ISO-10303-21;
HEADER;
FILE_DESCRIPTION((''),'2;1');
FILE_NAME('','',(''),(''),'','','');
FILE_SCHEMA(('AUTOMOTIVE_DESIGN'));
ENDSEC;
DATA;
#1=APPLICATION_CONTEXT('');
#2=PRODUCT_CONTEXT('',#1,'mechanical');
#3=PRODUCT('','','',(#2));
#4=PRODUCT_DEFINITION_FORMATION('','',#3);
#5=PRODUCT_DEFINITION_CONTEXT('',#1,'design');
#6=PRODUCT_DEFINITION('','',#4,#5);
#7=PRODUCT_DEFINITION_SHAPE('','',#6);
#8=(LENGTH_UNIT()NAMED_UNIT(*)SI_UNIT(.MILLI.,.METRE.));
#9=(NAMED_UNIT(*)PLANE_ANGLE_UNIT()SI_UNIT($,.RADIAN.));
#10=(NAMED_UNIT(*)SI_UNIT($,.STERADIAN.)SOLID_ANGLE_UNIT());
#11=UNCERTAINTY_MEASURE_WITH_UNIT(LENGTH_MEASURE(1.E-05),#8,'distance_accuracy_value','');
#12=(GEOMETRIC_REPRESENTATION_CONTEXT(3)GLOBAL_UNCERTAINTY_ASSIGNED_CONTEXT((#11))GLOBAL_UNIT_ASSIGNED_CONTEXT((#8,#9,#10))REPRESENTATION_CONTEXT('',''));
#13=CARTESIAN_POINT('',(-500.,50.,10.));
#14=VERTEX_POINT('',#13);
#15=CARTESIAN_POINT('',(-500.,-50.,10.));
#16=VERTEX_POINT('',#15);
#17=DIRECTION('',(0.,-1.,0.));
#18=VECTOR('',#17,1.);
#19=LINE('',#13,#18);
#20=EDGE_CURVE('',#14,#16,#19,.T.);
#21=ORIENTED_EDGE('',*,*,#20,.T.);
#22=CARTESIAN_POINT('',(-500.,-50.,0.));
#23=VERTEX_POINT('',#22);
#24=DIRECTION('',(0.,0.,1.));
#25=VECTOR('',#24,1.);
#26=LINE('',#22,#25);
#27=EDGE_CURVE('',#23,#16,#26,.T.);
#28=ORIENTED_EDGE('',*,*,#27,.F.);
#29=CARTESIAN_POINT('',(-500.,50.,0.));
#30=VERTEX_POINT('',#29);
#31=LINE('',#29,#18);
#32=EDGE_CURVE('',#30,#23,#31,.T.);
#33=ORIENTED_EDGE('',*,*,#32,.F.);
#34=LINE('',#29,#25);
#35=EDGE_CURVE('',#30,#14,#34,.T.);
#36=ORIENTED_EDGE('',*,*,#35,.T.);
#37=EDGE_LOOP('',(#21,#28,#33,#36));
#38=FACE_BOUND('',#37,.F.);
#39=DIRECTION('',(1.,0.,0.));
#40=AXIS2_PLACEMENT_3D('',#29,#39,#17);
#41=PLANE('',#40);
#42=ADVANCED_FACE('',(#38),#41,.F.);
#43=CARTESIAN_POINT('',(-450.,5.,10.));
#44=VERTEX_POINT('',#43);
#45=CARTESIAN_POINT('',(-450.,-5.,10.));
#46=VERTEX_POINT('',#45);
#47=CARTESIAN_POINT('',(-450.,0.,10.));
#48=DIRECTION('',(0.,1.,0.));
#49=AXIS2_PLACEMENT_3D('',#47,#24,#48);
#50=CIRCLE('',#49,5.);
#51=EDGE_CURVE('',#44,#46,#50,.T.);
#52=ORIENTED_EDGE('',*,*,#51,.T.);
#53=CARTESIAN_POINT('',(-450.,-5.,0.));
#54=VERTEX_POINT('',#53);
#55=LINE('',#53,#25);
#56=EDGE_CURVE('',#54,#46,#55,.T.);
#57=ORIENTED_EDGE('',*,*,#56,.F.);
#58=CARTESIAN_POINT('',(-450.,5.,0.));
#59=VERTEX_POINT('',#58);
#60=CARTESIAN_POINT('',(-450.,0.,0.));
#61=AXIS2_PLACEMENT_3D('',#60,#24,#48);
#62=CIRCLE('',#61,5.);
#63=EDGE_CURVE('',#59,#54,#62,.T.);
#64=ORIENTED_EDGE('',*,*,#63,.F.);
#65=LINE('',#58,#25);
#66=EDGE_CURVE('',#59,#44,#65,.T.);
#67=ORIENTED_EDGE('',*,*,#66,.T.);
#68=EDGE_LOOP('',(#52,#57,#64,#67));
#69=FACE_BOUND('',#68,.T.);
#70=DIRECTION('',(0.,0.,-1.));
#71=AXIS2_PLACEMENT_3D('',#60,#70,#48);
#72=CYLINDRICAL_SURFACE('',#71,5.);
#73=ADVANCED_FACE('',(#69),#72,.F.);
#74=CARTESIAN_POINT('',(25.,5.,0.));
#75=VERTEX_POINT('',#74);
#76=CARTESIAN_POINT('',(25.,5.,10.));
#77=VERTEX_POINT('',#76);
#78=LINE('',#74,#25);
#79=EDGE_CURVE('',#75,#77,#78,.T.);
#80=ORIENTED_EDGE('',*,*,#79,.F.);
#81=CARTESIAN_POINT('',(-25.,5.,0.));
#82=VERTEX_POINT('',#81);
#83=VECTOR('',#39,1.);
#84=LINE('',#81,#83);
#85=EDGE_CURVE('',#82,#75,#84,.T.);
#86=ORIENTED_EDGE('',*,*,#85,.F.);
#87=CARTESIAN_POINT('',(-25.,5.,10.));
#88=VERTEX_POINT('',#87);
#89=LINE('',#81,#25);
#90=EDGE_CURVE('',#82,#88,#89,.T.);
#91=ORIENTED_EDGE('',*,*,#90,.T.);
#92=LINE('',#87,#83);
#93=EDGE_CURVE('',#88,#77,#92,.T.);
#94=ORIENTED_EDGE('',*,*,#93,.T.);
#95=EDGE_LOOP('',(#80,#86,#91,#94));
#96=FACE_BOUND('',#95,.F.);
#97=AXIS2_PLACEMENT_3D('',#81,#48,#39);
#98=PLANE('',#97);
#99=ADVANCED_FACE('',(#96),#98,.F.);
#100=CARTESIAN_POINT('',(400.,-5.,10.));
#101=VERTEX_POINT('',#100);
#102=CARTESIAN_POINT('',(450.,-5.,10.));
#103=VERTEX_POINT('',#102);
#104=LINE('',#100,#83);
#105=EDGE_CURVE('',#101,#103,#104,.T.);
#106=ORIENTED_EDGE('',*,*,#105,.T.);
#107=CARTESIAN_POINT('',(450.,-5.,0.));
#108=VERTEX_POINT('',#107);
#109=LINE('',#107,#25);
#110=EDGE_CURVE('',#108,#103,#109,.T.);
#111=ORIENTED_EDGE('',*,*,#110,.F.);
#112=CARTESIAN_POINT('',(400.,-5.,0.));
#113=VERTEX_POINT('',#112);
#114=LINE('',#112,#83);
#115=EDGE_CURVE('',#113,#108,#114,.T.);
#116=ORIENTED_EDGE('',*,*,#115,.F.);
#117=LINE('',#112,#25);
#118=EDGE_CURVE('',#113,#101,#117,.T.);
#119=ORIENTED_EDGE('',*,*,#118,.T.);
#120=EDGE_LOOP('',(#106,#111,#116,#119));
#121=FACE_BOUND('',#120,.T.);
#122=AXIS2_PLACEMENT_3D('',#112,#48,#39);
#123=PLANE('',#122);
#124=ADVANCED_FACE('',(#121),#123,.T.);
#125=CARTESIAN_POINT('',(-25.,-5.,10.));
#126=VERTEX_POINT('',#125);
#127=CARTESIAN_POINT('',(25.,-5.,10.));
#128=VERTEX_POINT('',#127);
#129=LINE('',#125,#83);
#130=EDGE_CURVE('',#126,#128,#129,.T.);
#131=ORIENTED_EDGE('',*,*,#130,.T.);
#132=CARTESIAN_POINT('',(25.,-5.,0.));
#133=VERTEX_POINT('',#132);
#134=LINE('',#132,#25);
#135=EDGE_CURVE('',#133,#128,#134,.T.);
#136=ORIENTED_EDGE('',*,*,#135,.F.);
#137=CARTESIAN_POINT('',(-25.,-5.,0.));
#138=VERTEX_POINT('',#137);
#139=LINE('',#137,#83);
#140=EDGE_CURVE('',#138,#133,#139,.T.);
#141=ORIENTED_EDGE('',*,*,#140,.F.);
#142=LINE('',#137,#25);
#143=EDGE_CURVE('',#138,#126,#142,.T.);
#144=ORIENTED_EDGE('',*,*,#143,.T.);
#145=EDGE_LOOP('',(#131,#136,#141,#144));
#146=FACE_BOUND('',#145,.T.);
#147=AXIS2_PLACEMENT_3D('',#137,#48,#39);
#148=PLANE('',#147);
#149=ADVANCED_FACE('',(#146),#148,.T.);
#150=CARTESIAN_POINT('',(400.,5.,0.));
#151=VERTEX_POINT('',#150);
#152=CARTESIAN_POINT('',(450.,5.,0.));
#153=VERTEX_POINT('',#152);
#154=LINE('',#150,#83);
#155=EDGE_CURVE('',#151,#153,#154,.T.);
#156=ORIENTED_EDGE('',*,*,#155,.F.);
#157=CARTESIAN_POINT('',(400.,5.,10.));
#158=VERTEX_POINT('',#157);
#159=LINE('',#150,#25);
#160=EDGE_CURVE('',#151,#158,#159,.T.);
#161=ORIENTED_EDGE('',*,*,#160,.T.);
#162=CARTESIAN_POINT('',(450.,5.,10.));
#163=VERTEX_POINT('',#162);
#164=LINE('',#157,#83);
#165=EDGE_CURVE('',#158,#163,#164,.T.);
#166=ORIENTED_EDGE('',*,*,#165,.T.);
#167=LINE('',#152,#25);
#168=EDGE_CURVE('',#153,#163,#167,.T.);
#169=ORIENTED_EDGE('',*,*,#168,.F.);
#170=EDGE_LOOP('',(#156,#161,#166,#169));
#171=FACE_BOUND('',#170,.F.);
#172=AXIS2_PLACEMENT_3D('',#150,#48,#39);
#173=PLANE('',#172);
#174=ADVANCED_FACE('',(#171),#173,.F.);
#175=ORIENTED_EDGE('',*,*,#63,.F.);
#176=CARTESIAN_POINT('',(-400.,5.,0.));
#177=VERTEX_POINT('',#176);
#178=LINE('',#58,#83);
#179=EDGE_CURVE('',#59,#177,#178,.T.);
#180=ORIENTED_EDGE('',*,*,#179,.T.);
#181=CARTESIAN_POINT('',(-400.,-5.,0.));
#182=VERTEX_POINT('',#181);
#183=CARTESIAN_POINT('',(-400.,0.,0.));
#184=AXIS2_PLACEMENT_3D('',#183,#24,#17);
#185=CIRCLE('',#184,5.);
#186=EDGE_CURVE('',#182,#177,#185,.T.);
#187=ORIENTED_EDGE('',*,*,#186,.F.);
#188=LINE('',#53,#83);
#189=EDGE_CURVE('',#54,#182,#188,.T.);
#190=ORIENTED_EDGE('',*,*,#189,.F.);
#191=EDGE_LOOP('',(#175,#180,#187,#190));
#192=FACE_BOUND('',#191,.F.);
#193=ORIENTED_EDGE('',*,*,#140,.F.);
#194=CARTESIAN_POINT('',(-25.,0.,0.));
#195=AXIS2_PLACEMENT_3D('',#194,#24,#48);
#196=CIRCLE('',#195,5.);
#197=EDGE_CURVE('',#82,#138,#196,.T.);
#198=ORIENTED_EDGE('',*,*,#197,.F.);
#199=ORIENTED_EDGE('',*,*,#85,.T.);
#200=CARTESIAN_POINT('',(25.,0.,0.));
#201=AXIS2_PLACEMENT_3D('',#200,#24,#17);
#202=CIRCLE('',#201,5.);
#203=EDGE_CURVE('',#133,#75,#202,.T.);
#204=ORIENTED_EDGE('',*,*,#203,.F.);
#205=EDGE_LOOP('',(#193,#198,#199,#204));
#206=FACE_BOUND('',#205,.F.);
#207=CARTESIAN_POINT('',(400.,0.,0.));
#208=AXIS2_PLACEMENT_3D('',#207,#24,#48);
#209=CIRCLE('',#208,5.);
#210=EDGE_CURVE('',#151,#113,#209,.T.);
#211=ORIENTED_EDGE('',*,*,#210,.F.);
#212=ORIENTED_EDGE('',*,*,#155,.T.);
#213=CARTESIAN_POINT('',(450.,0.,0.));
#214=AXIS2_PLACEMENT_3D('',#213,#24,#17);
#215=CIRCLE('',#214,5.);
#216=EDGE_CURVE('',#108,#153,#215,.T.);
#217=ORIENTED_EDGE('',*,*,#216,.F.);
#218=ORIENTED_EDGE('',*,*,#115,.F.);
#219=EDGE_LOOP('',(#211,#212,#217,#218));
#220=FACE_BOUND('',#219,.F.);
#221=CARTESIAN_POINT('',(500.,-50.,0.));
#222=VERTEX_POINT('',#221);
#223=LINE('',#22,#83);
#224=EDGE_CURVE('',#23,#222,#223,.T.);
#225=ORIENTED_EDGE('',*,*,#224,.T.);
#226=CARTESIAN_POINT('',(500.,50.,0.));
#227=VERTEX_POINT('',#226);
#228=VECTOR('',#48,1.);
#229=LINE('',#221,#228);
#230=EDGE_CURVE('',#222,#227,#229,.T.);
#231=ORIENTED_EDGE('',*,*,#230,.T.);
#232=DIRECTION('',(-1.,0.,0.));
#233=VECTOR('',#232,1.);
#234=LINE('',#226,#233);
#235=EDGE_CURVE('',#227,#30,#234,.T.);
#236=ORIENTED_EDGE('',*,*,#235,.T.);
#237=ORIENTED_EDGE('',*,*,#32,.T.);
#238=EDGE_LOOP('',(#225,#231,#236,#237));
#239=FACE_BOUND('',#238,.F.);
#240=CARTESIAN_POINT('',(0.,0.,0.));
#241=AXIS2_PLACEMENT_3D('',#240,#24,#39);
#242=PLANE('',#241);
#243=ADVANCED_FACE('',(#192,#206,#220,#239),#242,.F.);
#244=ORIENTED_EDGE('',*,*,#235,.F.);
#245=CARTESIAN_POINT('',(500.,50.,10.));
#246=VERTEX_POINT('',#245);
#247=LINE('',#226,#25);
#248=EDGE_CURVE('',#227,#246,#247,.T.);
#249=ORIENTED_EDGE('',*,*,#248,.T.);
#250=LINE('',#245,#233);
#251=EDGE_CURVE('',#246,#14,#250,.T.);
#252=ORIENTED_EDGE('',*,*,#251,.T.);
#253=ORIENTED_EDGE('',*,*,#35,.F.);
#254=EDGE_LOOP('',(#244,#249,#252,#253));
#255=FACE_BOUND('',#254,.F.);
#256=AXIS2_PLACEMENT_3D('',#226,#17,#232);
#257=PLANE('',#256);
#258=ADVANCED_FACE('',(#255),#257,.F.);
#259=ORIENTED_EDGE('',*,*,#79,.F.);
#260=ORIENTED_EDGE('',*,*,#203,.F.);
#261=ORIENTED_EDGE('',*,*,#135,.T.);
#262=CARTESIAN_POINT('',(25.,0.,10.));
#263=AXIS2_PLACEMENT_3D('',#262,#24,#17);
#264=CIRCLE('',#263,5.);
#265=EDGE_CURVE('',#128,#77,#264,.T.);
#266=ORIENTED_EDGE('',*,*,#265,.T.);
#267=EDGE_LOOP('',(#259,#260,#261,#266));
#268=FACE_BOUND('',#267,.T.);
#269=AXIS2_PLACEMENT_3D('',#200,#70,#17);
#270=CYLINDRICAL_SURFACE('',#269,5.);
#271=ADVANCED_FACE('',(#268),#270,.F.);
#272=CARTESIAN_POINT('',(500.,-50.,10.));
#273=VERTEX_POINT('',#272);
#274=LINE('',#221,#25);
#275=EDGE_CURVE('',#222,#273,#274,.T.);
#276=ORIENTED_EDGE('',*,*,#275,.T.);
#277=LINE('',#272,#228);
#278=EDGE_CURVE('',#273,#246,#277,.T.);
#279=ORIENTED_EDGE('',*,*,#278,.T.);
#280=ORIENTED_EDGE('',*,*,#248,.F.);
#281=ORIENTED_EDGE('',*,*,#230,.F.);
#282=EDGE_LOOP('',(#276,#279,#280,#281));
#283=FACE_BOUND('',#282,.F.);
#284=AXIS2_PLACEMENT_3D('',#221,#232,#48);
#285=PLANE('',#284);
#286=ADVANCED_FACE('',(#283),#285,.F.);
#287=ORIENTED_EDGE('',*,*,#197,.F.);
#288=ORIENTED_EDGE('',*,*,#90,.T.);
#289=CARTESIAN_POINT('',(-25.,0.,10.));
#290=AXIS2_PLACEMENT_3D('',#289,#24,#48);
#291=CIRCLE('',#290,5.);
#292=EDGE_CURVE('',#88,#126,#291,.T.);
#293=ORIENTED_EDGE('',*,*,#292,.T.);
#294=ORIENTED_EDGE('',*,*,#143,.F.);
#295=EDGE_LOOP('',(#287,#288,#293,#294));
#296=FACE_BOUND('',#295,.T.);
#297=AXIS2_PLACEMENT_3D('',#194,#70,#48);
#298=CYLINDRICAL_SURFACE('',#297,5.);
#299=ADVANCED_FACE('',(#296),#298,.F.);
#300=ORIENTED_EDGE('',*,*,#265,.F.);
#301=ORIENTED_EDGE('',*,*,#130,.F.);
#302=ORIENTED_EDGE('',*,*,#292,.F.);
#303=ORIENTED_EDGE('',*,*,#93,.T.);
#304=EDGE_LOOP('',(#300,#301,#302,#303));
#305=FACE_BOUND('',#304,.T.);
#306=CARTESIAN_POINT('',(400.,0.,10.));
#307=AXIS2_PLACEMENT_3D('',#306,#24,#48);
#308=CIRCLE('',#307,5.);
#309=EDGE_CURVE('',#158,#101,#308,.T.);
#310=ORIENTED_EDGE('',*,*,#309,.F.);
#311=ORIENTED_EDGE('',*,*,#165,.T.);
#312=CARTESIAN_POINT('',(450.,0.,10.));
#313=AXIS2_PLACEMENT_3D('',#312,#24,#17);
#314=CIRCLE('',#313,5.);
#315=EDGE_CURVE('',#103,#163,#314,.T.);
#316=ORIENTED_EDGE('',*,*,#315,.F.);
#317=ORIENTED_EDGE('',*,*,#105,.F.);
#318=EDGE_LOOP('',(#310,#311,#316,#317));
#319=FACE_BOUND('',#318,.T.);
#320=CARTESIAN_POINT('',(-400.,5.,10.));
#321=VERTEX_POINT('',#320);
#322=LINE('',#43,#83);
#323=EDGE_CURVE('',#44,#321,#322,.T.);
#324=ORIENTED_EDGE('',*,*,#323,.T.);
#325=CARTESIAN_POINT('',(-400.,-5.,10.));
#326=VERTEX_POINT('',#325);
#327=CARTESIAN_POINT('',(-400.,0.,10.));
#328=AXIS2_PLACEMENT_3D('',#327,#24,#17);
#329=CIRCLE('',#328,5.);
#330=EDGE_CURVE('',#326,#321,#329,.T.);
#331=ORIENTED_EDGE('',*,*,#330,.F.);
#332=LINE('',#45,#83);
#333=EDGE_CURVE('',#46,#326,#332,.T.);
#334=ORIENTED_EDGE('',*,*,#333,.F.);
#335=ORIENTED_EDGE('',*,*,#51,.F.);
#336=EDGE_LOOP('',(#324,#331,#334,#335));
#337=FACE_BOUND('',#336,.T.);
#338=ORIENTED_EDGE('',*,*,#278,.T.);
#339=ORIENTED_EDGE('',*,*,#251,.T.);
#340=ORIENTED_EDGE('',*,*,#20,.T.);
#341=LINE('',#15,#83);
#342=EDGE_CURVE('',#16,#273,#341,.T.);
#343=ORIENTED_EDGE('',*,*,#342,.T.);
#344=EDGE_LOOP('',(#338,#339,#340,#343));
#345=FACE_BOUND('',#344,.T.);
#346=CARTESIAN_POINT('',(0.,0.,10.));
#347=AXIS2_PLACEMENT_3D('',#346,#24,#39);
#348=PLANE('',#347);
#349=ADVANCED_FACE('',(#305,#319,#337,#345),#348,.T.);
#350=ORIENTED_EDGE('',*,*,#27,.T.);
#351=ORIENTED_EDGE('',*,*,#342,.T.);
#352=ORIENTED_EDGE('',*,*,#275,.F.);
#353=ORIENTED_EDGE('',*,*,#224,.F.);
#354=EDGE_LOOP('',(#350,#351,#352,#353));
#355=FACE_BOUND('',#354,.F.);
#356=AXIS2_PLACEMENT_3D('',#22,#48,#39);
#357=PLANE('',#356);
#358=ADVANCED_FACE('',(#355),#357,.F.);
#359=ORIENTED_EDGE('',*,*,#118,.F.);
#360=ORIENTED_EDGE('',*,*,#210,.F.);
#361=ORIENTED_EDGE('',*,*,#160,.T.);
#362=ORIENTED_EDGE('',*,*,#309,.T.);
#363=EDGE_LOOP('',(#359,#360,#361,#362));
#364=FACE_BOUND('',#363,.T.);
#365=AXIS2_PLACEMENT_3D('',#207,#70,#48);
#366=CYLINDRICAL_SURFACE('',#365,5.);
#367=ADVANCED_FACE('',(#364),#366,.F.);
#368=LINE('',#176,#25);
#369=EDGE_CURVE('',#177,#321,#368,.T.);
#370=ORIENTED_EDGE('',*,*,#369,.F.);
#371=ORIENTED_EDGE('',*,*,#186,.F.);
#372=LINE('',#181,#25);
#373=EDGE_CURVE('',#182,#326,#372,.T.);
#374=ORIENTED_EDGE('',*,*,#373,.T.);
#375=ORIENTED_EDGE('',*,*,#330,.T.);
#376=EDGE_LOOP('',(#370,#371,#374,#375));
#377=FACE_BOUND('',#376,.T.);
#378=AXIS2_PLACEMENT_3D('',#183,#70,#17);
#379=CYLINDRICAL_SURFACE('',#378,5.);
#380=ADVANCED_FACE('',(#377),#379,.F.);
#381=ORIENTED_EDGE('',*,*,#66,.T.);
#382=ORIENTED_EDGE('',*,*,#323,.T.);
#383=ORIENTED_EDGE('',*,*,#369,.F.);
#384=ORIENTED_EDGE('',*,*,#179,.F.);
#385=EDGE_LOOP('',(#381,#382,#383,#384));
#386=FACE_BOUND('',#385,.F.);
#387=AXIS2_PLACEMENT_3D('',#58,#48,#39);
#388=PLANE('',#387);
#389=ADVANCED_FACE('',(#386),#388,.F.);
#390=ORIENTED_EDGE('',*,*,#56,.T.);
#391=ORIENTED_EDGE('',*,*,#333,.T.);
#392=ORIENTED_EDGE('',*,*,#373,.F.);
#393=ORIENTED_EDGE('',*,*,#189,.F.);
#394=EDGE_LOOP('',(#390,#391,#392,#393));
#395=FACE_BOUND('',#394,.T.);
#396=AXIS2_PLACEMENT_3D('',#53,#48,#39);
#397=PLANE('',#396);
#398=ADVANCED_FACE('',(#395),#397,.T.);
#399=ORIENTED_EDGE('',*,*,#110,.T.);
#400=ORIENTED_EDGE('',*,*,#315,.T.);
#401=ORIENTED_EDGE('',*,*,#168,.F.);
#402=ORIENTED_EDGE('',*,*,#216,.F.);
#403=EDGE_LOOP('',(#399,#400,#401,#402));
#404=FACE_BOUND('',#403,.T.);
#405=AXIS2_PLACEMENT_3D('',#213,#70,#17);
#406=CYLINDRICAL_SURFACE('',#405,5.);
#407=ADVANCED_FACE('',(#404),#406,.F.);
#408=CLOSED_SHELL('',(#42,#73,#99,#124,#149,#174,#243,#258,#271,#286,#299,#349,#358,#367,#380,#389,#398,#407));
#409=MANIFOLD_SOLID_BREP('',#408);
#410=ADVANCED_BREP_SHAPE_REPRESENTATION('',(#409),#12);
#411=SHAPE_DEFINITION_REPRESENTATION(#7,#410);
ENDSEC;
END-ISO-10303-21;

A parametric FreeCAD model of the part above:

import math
import FreeCAD as App
import Part
import Sketcher
Q = App.Units.Quantity

doc = App.newDocument("Part")
body = doc.addObject("PartDesign::Body", "Body")

# Sketch on XY plane
sketch1 = body.newObject("Sketcher::SketchObject", "Sketch")
sketch1.AttachmentSupport = (doc.getObject("XY_Plane"), [""])
sketch1.MapMode = "FlatFace"
sketch1.addGeometry(Part.LineSegment(App.Vector(500, -50, 0), App.Vector(500, 50, 0)), False)
sketch1.addGeometry(Part.LineSegment(App.Vector(500, 50, 0), App.Vector(-500, 50, 0)), False)
sketch1.addGeometry(Part.LineSegment(App.Vector(-500, 50, 0), App.Vector(-500, -50, 0)), False)
sketch1.addGeometry(Part.LineSegment(App.Vector(-500, -50, 0), App.Vector(500, -50, 0)), False)
sketch1.addConstraint(Sketcher.Constraint("Coincident", 0, 2, 1, 1))
sketch1.addConstraint(Sketcher.Constraint("Coincident", 1, 2, 2, 1))
sketch1.addConstraint(Sketcher.Constraint("Coincident", 2, 2, 3, 1))
sketch1.addConstraint(Sketcher.Constraint("Coincident", 3, 2, 0, 1))
sketch1.addConstraint(Sketcher.Constraint("Vertical", 0))
sketch1.addConstraint(Sketcher.Constraint("Horizontal", 1))
sketch1.addConstraint(Sketcher.Constraint("Vertical", 2))
sketch1.addConstraint(Sketcher.Constraint("Horizontal", 3))
sketch1.addConstraint(Sketcher.Constraint("Symmetric", 0, 2, 2, 2, -1, 1))
sketch1.addConstraint(Sketcher.Constraint("DistanceX", 1, 2, 1, 1, Q("1000 mm")))
sketch1.addConstraint(Sketcher.Constraint("DistanceY", 0, 1, 0, 2, Q("100 mm")))
pad1 = body.newObject("PartDesign::Pad", "Pad")
pad1.Profile = sketch1
pad1.Length = 10

# Sketch on XY plane
sketch2 = body.newObject("Sketcher::SketchObject", "Sketch001")
sketch2.AttachmentSupport = (doc.getObject("XY_Plane"), [""])
sketch2.MapMode = "FlatFace"
sketch2.addGeometry(Part.LineSegment(App.Vector(450, 5, 0), App.Vector(400, 5, 0)), False)
sketch2.addGeometry(Part.ArcOfCircle(Part.Circle(App.Vector(400, 0, 0), App.Vector(0, 0, 1), 5), math.radians(90), math.radians(270)), False)
sketch2.addGeometry(Part.LineSegment(App.Vector(400, -5, 0), App.Vector(450, -5, 0)), False)
sketch2.addGeometry(Part.ArcOfCircle(Part.Circle(App.Vector(450, 0, 0), App.Vector(0, 0, 1), 5), math.radians(-90), math.radians(90)), False)
sketch2.addGeometry(Part.LineSegment(App.Vector(25, 5, 0), App.Vector(-25, 5, 0)), False)
sketch2.addGeometry(Part.ArcOfCircle(Part.Circle(App.Vector(-25, 0, 0), App.Vector(0, 0, 1), 5), math.radians(90), math.radians(270)), False)
sketch2.addGeometry(Part.LineSegment(App.Vector(-25, -5, 0), App.Vector(25, -5, 0)), False)
sketch2.addGeometry(Part.ArcOfCircle(Part.Circle(App.Vector(25, 0, 0), App.Vector(0, 0, 1), 5), math.radians(-90), math.radians(90)), False)
sketch2.addGeometry(Part.LineSegment(App.Vector(-400, 5, 0), App.Vector(-450, 5, 0)), False)
sketch2.addGeometry(Part.ArcOfCircle(Part.Circle(App.Vector(-450, 0, 0), App.Vector(0, 0, 1), 5), math.radians(90), math.radians(270)), False)
sketch2.addGeometry(Part.LineSegment(App.Vector(-450, -5, 0), App.Vector(-400, -5, 0)), False)
sketch2.addGeometry(Part.ArcOfCircle(Part.Circle(App.Vector(-400, 0, 0), App.Vector(0, 0, 1), 5), math.radians(-90), math.radians(90)), False)
sketch2.addConstraint(Sketcher.Constraint("Tangent", 0, 2, 1, 1))
sketch2.addConstraint(Sketcher.Constraint("Tangent", 1, 2, 2, 1))
sketch2.addConstraint(Sketcher.Constraint("Tangent", 2, 2, 3, 1))
sketch2.addConstraint(Sketcher.Constraint("Tangent", 3, 2, 0, 1))
sketch2.addConstraint(Sketcher.Constraint("Tangent", 4, 2, 5, 1))
sketch2.addConstraint(Sketcher.Constraint("Tangent", 5, 2, 6, 1))
sketch2.addConstraint(Sketcher.Constraint("Tangent", 6, 2, 7, 1))
sketch2.addConstraint(Sketcher.Constraint("Tangent", 7, 2, 4, 1))
sketch2.addConstraint(Sketcher.Constraint("Tangent", 8, 2, 9, 1))
sketch2.addConstraint(Sketcher.Constraint("Tangent", 9, 2, 10, 1))
sketch2.addConstraint(Sketcher.Constraint("Tangent", 10, 2, 11, 1))
sketch2.addConstraint(Sketcher.Constraint("Tangent", 11, 2, 8, 1))
sketch2.addConstraint(Sketcher.Constraint("Horizontal", 0))
sketch2.addConstraint(Sketcher.Constraint("Horizontal", 2))
sketch2.addConstraint(Sketcher.Constraint("Horizontal", 4))
sketch2.addConstraint(Sketcher.Constraint("Horizontal", 6))
sketch2.addConstraint(Sketcher.Constraint("Horizontal", 8))
sketch2.addConstraint(Sketcher.Constraint("Horizontal", 10))
sketch2.addConstraint(Sketcher.Constraint("Equal", 3, 5))
sketch2.addConstraint(Sketcher.Constraint("Equal", 7, 9))
sketch2.addConstraint(Sketcher.Constraint("Symmetric", 5, 3, 7, 3, -1, 1))
sketch2.addConstraint(Sketcher.Constraint("Symmetric", 3, 3, 9, 3, -1, 1))
sketch2.addConstraint(Sketcher.Constraint("Symmetric", 1, 3, 11, 3, -2))
sketch2.addConstraint(Sketcher.Constraint("Equal", 2, 4))
sketch2.addConstraint(Sketcher.Constraint("Radius", 1, Q("5 mm")))
sketch2.addConstraint(Sketcher.Constraint("DistanceX", 0, 2, 0, 1, Q("50 mm")))
sketch2.addConstraint(Sketcher.Constraint("DistanceX", -1, 1, 1, 3, Q("400 mm")))
pocket1 = body.newObject("PartDesign::Pocket", "Pocket")
pocket1.Profile = sketch2
pocket1.Length = 10
pocket1.Reversed = True

doc.recompute()
